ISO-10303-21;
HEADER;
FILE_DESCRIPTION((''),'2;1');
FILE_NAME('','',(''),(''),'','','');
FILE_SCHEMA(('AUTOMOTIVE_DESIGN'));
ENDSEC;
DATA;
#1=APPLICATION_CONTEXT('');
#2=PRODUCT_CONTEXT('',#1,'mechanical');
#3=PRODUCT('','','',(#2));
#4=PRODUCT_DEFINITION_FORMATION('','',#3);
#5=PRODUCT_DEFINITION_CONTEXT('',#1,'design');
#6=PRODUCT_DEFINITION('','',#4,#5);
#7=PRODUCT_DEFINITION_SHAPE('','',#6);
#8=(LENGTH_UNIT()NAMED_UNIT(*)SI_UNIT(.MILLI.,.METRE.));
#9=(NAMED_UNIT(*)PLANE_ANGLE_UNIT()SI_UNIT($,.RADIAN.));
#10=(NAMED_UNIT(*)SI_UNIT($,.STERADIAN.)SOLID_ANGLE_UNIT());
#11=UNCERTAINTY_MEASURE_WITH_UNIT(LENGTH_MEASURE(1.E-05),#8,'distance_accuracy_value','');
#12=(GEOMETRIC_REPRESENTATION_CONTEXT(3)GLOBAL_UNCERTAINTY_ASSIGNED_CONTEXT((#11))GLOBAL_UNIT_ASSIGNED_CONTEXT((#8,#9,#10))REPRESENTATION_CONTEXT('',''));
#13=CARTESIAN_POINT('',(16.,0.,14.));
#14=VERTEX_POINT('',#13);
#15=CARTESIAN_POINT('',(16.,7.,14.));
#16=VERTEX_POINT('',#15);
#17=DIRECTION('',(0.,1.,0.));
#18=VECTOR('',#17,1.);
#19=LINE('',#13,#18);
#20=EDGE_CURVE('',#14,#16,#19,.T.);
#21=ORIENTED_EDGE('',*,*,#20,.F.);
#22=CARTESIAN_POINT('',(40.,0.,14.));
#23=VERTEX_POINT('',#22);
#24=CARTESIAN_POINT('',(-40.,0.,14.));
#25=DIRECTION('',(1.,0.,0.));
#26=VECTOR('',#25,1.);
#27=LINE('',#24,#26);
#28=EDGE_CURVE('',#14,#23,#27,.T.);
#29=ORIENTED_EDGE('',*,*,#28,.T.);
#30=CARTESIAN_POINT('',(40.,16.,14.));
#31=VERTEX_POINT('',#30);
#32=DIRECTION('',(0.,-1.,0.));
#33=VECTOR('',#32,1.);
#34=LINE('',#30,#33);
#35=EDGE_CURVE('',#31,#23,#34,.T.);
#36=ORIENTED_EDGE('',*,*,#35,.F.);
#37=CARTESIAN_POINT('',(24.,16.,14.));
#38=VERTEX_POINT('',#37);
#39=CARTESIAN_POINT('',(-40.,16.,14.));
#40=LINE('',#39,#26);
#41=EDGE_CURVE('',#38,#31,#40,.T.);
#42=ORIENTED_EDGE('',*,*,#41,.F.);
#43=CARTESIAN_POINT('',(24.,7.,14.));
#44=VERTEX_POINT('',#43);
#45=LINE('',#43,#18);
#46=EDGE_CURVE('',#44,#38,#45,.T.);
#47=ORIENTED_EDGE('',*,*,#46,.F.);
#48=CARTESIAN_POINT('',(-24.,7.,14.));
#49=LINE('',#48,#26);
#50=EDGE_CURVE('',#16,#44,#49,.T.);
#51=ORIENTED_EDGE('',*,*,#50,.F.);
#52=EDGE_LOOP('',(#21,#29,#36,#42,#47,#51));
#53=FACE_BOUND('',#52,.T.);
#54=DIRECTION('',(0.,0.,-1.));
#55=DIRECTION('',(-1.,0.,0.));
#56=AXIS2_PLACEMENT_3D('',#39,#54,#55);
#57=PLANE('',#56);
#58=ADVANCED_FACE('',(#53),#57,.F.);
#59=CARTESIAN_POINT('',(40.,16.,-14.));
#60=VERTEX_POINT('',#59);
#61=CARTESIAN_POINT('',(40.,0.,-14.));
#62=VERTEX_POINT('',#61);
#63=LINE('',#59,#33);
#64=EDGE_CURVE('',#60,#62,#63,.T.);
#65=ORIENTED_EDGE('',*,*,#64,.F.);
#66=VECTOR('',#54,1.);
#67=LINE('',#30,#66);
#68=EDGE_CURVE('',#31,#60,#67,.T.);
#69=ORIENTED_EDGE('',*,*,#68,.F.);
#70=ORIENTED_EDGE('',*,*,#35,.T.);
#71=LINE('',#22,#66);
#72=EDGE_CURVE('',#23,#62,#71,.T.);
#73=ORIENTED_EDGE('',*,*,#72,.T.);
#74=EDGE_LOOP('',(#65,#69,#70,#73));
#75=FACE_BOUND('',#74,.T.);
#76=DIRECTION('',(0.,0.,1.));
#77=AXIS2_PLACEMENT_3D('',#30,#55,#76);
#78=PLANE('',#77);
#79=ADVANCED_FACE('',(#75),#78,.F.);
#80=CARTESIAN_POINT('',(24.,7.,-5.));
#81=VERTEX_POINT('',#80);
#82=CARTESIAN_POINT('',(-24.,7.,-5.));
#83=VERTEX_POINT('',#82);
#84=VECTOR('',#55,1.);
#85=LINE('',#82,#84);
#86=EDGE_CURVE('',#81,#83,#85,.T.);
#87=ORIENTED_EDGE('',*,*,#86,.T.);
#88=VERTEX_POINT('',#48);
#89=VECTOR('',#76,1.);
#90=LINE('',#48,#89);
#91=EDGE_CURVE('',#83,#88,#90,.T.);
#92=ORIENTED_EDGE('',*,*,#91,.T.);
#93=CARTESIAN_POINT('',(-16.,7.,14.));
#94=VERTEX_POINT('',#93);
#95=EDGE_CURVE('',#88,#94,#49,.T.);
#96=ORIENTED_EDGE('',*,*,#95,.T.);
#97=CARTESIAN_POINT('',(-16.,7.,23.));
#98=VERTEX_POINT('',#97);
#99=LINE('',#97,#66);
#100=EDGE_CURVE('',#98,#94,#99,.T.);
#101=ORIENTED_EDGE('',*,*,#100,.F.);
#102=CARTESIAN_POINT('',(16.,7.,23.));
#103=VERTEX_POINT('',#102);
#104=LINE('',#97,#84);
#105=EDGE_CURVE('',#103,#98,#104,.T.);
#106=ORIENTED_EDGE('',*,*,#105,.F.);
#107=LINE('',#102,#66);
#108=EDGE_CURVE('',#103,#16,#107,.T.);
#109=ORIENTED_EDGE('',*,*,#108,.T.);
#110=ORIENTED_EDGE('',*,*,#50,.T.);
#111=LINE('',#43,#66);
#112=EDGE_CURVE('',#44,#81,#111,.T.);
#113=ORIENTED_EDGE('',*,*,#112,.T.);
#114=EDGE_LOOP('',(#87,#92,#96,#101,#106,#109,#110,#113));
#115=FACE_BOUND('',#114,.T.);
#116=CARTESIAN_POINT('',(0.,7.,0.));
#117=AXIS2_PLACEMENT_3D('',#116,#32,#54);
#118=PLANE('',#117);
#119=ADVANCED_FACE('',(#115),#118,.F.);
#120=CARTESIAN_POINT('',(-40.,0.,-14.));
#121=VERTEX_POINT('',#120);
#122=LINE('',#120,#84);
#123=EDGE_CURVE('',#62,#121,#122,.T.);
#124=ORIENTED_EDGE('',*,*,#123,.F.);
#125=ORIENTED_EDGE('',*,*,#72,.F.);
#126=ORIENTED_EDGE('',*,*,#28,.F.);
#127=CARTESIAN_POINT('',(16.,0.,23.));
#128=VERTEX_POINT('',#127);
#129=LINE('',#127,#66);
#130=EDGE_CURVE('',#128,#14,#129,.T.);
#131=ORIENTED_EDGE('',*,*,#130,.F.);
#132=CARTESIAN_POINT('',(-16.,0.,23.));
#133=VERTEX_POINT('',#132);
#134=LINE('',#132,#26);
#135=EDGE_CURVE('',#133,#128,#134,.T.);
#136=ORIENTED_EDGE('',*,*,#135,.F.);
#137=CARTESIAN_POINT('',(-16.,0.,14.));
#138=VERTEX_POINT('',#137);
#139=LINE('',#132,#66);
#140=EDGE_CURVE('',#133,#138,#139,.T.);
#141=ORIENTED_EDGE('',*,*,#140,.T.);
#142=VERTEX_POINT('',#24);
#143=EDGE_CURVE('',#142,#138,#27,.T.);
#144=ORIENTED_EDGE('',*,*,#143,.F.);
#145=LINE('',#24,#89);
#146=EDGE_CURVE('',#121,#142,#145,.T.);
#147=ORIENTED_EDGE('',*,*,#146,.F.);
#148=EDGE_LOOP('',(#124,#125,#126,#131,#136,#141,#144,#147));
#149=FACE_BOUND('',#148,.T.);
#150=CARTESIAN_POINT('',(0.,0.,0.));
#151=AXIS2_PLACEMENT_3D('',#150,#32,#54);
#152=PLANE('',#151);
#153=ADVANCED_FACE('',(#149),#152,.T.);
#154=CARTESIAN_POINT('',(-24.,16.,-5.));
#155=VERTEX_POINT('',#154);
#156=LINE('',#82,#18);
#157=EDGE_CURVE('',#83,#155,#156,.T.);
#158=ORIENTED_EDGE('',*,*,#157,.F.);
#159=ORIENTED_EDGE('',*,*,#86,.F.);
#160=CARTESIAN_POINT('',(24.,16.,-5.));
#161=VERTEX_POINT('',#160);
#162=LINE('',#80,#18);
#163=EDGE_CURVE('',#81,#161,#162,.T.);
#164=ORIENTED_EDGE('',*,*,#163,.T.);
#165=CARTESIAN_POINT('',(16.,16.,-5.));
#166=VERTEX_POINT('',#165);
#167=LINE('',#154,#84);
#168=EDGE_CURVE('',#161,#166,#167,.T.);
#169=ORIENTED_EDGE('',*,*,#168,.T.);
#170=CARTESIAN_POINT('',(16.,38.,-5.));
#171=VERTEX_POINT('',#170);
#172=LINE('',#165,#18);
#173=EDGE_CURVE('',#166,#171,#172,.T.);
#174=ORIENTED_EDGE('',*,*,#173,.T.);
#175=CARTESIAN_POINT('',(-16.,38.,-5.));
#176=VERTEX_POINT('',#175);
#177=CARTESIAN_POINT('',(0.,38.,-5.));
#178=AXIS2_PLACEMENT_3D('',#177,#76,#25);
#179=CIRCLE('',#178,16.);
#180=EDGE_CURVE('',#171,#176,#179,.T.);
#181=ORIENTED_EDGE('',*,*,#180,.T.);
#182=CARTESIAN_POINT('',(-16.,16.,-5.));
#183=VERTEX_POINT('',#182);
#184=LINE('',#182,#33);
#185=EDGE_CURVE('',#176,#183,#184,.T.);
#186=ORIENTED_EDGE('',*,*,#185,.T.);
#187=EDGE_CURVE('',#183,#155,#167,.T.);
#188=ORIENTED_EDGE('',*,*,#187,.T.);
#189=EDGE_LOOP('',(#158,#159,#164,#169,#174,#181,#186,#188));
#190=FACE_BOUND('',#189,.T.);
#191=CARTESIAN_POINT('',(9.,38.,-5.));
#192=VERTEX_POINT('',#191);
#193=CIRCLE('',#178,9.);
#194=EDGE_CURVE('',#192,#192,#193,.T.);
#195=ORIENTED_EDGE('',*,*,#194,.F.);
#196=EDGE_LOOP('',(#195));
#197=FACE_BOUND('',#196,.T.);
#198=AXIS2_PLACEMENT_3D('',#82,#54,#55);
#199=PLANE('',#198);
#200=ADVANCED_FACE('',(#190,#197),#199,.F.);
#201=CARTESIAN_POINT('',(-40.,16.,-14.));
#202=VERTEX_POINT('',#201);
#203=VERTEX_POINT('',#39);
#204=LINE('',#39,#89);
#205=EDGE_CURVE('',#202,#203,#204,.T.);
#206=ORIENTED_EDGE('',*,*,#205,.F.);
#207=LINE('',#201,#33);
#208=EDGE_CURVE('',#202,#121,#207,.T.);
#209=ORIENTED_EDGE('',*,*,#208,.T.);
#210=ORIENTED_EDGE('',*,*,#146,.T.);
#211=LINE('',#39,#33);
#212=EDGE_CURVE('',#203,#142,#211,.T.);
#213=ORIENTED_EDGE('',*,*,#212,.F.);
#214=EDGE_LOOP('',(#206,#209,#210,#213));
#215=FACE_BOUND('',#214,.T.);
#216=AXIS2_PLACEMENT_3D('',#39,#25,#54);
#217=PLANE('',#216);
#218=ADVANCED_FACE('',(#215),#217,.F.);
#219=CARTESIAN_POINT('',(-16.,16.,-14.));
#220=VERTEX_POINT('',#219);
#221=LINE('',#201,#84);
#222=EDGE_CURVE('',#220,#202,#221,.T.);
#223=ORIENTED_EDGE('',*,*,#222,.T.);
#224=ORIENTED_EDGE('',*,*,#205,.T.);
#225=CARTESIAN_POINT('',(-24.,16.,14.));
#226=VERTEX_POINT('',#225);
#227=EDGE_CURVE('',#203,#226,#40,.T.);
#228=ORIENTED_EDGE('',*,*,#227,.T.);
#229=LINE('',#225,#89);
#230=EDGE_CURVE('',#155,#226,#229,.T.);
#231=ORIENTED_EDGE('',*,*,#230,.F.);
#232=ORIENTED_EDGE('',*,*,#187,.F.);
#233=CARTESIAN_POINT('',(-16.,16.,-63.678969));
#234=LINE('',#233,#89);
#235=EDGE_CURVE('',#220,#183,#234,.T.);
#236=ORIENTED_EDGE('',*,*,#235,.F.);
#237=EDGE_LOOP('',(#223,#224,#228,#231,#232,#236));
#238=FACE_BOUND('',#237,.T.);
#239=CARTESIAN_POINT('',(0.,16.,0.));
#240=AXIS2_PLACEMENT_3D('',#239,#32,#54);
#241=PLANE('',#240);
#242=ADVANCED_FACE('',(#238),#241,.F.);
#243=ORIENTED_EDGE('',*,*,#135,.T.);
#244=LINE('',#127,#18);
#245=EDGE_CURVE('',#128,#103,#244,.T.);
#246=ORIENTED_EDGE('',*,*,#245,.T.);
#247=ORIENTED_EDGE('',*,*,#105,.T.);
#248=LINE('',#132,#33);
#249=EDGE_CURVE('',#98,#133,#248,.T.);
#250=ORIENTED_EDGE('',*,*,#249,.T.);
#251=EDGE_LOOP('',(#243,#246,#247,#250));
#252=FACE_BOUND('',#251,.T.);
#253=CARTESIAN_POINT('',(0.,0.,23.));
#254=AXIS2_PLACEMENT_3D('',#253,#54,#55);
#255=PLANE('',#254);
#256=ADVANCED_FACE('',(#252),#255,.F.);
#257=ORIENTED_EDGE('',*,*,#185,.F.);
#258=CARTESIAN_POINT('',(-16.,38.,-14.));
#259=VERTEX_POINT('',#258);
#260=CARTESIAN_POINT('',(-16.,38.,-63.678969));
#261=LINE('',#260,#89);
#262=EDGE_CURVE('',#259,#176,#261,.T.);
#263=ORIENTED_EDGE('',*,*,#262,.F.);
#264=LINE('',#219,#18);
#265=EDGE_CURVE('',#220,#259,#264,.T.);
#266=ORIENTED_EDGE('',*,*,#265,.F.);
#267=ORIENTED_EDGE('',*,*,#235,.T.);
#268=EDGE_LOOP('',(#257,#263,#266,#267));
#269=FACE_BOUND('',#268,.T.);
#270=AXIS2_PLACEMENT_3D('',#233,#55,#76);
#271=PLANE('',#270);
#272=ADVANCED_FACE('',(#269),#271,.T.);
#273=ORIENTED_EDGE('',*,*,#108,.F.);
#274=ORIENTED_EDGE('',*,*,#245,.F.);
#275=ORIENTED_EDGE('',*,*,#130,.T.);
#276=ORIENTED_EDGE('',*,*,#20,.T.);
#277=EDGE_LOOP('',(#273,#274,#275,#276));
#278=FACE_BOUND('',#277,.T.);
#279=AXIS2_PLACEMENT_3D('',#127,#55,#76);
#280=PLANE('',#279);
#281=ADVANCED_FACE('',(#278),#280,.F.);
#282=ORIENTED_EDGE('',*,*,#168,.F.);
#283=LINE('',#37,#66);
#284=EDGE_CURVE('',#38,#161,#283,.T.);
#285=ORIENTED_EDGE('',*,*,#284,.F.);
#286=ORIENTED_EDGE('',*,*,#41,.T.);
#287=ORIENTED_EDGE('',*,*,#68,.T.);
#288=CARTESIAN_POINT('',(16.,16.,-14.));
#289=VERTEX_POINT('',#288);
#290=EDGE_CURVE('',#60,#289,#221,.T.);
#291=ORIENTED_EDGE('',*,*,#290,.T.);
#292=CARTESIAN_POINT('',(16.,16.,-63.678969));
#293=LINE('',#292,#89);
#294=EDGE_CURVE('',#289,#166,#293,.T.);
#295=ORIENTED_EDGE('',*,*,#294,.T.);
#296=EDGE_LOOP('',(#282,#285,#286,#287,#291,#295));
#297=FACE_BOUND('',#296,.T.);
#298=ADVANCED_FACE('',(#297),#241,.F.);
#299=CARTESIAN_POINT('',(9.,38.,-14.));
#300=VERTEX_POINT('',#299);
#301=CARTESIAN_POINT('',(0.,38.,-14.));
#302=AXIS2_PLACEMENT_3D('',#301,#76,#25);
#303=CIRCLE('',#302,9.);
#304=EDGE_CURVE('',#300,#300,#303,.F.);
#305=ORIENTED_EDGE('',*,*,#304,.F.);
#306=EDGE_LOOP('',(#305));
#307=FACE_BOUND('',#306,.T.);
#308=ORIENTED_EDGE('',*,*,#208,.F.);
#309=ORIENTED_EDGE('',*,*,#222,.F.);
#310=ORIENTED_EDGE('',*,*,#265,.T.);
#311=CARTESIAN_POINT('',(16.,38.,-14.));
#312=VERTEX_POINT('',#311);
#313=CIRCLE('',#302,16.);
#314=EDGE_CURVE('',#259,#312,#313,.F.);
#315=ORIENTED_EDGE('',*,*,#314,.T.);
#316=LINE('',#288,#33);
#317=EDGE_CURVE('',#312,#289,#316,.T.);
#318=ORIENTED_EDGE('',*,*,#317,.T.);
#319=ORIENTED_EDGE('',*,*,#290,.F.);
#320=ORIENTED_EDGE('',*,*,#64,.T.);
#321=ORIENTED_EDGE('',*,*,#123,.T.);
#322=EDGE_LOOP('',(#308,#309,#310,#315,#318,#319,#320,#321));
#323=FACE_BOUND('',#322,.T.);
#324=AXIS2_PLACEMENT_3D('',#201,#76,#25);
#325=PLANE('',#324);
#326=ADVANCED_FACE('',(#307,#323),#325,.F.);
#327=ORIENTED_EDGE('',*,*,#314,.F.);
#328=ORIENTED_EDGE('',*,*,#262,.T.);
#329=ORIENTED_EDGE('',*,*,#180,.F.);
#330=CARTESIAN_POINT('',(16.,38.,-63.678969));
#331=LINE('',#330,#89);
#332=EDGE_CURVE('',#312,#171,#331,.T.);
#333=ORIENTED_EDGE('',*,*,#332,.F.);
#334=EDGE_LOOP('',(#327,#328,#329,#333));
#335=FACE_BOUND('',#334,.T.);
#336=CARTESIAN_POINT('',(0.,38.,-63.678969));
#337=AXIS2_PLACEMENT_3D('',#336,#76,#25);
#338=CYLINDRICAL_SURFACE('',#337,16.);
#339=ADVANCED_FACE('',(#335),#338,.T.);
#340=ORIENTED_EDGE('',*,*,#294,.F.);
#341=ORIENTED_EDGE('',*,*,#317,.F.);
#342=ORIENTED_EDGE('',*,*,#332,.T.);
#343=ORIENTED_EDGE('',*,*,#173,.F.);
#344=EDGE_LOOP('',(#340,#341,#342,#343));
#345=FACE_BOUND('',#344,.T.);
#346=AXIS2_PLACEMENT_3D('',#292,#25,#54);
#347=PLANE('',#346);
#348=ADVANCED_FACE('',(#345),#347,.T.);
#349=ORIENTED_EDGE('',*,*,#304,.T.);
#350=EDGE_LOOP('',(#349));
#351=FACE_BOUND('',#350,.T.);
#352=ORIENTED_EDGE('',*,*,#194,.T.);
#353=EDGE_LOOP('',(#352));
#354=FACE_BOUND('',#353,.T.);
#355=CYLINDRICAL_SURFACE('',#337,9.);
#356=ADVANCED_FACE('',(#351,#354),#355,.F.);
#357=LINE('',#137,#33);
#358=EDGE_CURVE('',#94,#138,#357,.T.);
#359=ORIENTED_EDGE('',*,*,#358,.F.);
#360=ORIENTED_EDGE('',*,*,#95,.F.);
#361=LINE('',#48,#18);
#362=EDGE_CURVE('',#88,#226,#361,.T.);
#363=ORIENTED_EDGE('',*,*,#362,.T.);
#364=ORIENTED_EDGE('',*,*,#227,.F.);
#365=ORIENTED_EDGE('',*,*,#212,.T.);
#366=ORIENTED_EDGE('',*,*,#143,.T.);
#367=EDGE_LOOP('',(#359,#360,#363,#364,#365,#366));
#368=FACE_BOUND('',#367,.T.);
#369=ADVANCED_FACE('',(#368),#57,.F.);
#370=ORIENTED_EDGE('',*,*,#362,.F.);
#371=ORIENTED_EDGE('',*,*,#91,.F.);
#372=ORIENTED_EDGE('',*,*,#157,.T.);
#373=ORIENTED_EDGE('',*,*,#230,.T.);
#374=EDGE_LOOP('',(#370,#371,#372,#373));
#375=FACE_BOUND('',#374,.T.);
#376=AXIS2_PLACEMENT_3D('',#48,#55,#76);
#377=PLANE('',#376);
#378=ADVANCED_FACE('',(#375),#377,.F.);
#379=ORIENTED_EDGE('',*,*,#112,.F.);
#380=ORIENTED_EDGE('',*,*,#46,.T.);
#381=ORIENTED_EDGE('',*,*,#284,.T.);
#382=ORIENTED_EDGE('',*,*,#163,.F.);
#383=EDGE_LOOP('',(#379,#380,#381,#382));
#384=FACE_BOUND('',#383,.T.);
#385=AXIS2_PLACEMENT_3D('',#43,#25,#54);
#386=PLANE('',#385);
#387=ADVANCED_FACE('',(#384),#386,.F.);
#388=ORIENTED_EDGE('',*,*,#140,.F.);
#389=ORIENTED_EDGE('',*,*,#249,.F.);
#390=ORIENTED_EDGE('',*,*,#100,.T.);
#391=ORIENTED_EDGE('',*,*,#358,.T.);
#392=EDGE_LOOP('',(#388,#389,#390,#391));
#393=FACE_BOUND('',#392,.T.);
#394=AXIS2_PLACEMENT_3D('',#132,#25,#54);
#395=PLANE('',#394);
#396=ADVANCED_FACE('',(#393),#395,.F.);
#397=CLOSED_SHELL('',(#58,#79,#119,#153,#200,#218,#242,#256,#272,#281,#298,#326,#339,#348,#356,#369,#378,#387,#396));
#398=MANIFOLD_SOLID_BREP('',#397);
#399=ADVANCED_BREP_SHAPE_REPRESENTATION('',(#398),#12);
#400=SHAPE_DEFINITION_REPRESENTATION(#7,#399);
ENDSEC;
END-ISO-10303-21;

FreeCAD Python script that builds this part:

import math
import FreeCAD as App
import Part
import Sketcher

V = App.Vector
Q = App.Units.Quantity

doc = App.newDocument("Part")
body = doc.addObject("PartDesign::Body", "Body")

sketch1 = doc.addObject("Sketcher::SketchObject", "Sketch")
body.addObject(sketch1)
sketch1.AttachmentSupport = (doc.XZ_Plane, [""])
sketch1.MapMode = "FlatFace"
sketch1.addGeometry(Part.LineSegment(V(-40, -14, 0), V(-40, 14, 0)), False)
sketch1.addGeometry(Part.LineSegment(V(-40, 14, 0), V(40, 14, 0)), False)
sketch1.addGeometry(Part.LineSegment(V(40, 14, 0), V(40, -14, 0)), False)
sketch1.addGeometry(Part.LineSegment(V(40, -14, 0), V(-40, -14, 0)), False)
sketch1.addConstraint(Sketcher.Constraint("Coincident", 0, 2, 1, 1))
sketch1.addConstraint(Sketcher.Constraint("Coincident", 1, 2, 2, 1))
sketch1.addConstraint(Sketcher.Constraint("Coincident", 2, 2, 3, 1))
sketch1.addConstraint(Sketcher.Constraint("Coincident", 3, 2, 0, 1))
sketch1.addConstraint(Sketcher.Constraint("Vertical", 0))
sketch1.addConstraint(Sketcher.Constraint("Horizontal", 1))
sketch1.addConstraint(Sketcher.Constraint("Vertical", 2))
sketch1.addConstraint(Sketcher.Constraint("Horizontal", 3))
sketch1.addConstraint(Sketcher.Constraint("Symmetric", 0, 2, 2, 2, -1, 1))
sketch1.addConstraint(Sketcher.Constraint("DistanceX", 1, 1, 1, 2, Q("80 mm")))
sketch1.addConstraint(Sketcher.Constraint("DistanceY", 0, 1, 0, 2, Q("28 mm")))
pad1 = doc.addObject("PartDesign::Pad", "Pad")
body.addObject(pad1)
pad1.Profile = sketch1
pad1.Length = 16
pad1.Reversed = True

sketch2 = doc.addObject("Sketcher::SketchObject", "Sketch001")
body.addObject(sketch2)
sketch2.AttachmentSupport = (doc.XZ_Plane, [""])
sketch2.MapMode = "FlatFace"
sketch2.AttachmentOffset = App.Placement(V(0, 0, -16), App.Rotation())
sketch2.addGeometry(Part.LineSegment(V(-24, -5, 0), V(-24, 14, 0)), False)
sketch2.addGeometry(Part.LineSegment(V(-24, 14, 0), V(24, 14, 0)), False)
sketch2.addGeometry(Part.LineSegment(V(24, 14, 0), V(24, -5, 0)), False)
sketch2.addGeometry(Part.LineSegment(V(24, -5, 0), V(-24, -5, 0)), False)
sketch2.addConstraint(Sketcher.Constraint("Coincident", 0, 2, 1, 1))
sketch2.addConstraint(Sketcher.Constraint("Coincident", 1, 2, 2, 1))
sketch2.addConstraint(Sketcher.Constraint("Coincident", 2, 2, 3, 1))
sketch2.addConstraint(Sketcher.Constraint("Coincident", 3, 2, 0, 1))
sketch2.addConstraint(Sketcher.Constraint("Vertical", 0))
sketch2.addConstraint(Sketcher.Constraint("Horizontal", 1))
sketch2.addConstraint(Sketcher.Constraint("Vertical", 2))
sketch2.addConstraint(Sketcher.Constraint("Horizontal", 3))
sketch2.addConstraint(Sketcher.Constraint("DistanceX", 1, 1, 1, 2, Q("48 mm")))
sketch2.addConstraint(Sketcher.Constraint("DistanceY", 0, 1, 0, 2, Q("19 mm")))
sketch2.addConstraint(Sketcher.Constraint("DistanceX", 0, 2, -1, 1, Q("24 mm")))
sketch2.addConstraint(Sketcher.Constraint("DistanceY", -1, 1, 0, 2, Q("14 mm")))
pocket1 = doc.addObject("PartDesign::Pocket", "Pocket")
body.addObject(pocket1)
pocket1.Profile = sketch2
pocket1.Length = 9
pocket1.Reversed = True

sketch3 = doc.addObject("Sketcher::SketchObject", "Sketch002")
body.addObject(sketch3)
sketch3.AttachmentSupport = (doc.XY_Plane, [""])
sketch3.MapMode = "FlatFace"
sketch3.AttachmentOffset = App.Placement(V(0, 0, 14), App.Rotation())
sketch3.addGeometry(Part.LineSegment(V(-16, 7, 0), V(-16, 0, 0)), False)
sketch3.addGeometry(Part.LineSegment(V(-16, 0, 0), V(16, 0, 0)), False)
sketch3.addGeometry(Part.LineSegment(V(16, 0, 0), V(16, 7, 0)), False)
sketch3.addGeometry(Part.LineSegment(V(16, 7, 0), V(-16, 7, 0)), False)
sketch3.addConstraint(Sketcher.Constraint("Coincident", 0, 2, 1, 1))
sketch3.addConstraint(Sketcher.Constraint("Coincident", 1, 2, 2, 1))
sketch3.addConstraint(Sketcher.Constraint("Coincident", 2, 2, 3, 1))
sketch3.addConstraint(Sketcher.Constraint("Coincident", 3, 2, 0, 1))
sketch3.addConstraint(Sketcher.Constraint("Vertical", 0))
sketch3.addConstraint(Sketcher.Constraint("Horizontal", 1))
sketch3.addConstraint(Sketcher.Constraint("Vertical", 2))
sketch3.addConstraint(Sketcher.Constraint("Horizontal", 3))
sketch3.addConstraint(Sketcher.Constraint("Symmetric", 0, 2, 1, 2, -1, 1))
sketch3.addConstraint(Sketcher.Constraint("DistanceX", 1, 1, 1, 2, Q("32 mm")))
sketch3.addConstraint(Sketcher.Constraint("DistanceY", 0, 2, 0, 1, Q("7 mm")))
pad2 = doc.addObject("PartDesign::Pad", "Pad001")
body.addObject(pad2)
pad2.Profile = sketch3
pad2.Length = 9

sketch4 = doc.addObject("Sketcher::SketchObject", "Sketch003")
body.addObject(sketch4)
sketch4.AttachmentSupport = (doc.XY_Plane, [""])
sketch4.MapMode = "FlatFace"
sketch4.AttachmentOffset = App.Placement(V(0, 0, -5), App.Rotation())
sketch4.addGeometry(Part.LineSegment(V(-16, 16, 0), V(16, 16, 0)), False)
sketch4.addGeometry(Part.LineSegment(V(16, 16, 0), V(16, 38, 0)), False)
sketch4.addGeometry(Part.ArcOfCircle(Part.Circle(V(0, 38, 0), V(0, 0, 1), 16), math.radians(0), math.radians(180)), False)
sketch4.addGeometry(Part.LineSegment(V(-16, 38, 0), V(-16, 16, 0)), False)
sketch4.addGeometry(Part.Circle(V(0, 38, 0), V(0, 0, 1), 9), False)
sketch4.addConstraint(Sketcher.Constraint("Coincident", 0, 2, 1, 1))
sketch4.addConstraint(Sketcher.Constraint("Tangent", 1, 2, 2, 1))
sketch4.addConstraint(Sketcher.Constraint("Tangent", 2, 2, 3, 1))
sketch4.addConstraint(Sketcher.Constraint("Coincident", 3, 2, 0, 1))
sketch4.addConstraint(Sketcher.Constraint("Horizontal", 0))
sketch4.addConstraint(Sketcher.Constraint("Vertical", 1))
sketch4.addConstraint(Sketcher.Constraint("Vertical", 3))
sketch4.addConstraint(Sketcher.Constraint("Coincident", 4, 3, 2, 3))
sketch4.addConstraint(Sketcher.Constraint("PointOnObject", 2, 3, -2))
sketch4.addConstraint(Sketcher.Constraint("Diameter", 4, Q("18 mm")))
sketch4.addConstraint(Sketcher.Constraint("Radius", 2, Q("16 mm")))
sketch4.addConstraint(Sketcher.Constraint("DistanceY", 1, 1, 1, 2, Q("22 mm")))
sketch4.addConstraint(Sketcher.Constraint("DistanceY", -1, 1, 2, 3, Q("38 mm")))
pad3 = doc.addObject("PartDesign::Pad", "Pad002")
body.addObject(pad3)
pad3.Profile = sketch4
pad3.Length = 9
pad3.Reversed = True

doc.recompute()
